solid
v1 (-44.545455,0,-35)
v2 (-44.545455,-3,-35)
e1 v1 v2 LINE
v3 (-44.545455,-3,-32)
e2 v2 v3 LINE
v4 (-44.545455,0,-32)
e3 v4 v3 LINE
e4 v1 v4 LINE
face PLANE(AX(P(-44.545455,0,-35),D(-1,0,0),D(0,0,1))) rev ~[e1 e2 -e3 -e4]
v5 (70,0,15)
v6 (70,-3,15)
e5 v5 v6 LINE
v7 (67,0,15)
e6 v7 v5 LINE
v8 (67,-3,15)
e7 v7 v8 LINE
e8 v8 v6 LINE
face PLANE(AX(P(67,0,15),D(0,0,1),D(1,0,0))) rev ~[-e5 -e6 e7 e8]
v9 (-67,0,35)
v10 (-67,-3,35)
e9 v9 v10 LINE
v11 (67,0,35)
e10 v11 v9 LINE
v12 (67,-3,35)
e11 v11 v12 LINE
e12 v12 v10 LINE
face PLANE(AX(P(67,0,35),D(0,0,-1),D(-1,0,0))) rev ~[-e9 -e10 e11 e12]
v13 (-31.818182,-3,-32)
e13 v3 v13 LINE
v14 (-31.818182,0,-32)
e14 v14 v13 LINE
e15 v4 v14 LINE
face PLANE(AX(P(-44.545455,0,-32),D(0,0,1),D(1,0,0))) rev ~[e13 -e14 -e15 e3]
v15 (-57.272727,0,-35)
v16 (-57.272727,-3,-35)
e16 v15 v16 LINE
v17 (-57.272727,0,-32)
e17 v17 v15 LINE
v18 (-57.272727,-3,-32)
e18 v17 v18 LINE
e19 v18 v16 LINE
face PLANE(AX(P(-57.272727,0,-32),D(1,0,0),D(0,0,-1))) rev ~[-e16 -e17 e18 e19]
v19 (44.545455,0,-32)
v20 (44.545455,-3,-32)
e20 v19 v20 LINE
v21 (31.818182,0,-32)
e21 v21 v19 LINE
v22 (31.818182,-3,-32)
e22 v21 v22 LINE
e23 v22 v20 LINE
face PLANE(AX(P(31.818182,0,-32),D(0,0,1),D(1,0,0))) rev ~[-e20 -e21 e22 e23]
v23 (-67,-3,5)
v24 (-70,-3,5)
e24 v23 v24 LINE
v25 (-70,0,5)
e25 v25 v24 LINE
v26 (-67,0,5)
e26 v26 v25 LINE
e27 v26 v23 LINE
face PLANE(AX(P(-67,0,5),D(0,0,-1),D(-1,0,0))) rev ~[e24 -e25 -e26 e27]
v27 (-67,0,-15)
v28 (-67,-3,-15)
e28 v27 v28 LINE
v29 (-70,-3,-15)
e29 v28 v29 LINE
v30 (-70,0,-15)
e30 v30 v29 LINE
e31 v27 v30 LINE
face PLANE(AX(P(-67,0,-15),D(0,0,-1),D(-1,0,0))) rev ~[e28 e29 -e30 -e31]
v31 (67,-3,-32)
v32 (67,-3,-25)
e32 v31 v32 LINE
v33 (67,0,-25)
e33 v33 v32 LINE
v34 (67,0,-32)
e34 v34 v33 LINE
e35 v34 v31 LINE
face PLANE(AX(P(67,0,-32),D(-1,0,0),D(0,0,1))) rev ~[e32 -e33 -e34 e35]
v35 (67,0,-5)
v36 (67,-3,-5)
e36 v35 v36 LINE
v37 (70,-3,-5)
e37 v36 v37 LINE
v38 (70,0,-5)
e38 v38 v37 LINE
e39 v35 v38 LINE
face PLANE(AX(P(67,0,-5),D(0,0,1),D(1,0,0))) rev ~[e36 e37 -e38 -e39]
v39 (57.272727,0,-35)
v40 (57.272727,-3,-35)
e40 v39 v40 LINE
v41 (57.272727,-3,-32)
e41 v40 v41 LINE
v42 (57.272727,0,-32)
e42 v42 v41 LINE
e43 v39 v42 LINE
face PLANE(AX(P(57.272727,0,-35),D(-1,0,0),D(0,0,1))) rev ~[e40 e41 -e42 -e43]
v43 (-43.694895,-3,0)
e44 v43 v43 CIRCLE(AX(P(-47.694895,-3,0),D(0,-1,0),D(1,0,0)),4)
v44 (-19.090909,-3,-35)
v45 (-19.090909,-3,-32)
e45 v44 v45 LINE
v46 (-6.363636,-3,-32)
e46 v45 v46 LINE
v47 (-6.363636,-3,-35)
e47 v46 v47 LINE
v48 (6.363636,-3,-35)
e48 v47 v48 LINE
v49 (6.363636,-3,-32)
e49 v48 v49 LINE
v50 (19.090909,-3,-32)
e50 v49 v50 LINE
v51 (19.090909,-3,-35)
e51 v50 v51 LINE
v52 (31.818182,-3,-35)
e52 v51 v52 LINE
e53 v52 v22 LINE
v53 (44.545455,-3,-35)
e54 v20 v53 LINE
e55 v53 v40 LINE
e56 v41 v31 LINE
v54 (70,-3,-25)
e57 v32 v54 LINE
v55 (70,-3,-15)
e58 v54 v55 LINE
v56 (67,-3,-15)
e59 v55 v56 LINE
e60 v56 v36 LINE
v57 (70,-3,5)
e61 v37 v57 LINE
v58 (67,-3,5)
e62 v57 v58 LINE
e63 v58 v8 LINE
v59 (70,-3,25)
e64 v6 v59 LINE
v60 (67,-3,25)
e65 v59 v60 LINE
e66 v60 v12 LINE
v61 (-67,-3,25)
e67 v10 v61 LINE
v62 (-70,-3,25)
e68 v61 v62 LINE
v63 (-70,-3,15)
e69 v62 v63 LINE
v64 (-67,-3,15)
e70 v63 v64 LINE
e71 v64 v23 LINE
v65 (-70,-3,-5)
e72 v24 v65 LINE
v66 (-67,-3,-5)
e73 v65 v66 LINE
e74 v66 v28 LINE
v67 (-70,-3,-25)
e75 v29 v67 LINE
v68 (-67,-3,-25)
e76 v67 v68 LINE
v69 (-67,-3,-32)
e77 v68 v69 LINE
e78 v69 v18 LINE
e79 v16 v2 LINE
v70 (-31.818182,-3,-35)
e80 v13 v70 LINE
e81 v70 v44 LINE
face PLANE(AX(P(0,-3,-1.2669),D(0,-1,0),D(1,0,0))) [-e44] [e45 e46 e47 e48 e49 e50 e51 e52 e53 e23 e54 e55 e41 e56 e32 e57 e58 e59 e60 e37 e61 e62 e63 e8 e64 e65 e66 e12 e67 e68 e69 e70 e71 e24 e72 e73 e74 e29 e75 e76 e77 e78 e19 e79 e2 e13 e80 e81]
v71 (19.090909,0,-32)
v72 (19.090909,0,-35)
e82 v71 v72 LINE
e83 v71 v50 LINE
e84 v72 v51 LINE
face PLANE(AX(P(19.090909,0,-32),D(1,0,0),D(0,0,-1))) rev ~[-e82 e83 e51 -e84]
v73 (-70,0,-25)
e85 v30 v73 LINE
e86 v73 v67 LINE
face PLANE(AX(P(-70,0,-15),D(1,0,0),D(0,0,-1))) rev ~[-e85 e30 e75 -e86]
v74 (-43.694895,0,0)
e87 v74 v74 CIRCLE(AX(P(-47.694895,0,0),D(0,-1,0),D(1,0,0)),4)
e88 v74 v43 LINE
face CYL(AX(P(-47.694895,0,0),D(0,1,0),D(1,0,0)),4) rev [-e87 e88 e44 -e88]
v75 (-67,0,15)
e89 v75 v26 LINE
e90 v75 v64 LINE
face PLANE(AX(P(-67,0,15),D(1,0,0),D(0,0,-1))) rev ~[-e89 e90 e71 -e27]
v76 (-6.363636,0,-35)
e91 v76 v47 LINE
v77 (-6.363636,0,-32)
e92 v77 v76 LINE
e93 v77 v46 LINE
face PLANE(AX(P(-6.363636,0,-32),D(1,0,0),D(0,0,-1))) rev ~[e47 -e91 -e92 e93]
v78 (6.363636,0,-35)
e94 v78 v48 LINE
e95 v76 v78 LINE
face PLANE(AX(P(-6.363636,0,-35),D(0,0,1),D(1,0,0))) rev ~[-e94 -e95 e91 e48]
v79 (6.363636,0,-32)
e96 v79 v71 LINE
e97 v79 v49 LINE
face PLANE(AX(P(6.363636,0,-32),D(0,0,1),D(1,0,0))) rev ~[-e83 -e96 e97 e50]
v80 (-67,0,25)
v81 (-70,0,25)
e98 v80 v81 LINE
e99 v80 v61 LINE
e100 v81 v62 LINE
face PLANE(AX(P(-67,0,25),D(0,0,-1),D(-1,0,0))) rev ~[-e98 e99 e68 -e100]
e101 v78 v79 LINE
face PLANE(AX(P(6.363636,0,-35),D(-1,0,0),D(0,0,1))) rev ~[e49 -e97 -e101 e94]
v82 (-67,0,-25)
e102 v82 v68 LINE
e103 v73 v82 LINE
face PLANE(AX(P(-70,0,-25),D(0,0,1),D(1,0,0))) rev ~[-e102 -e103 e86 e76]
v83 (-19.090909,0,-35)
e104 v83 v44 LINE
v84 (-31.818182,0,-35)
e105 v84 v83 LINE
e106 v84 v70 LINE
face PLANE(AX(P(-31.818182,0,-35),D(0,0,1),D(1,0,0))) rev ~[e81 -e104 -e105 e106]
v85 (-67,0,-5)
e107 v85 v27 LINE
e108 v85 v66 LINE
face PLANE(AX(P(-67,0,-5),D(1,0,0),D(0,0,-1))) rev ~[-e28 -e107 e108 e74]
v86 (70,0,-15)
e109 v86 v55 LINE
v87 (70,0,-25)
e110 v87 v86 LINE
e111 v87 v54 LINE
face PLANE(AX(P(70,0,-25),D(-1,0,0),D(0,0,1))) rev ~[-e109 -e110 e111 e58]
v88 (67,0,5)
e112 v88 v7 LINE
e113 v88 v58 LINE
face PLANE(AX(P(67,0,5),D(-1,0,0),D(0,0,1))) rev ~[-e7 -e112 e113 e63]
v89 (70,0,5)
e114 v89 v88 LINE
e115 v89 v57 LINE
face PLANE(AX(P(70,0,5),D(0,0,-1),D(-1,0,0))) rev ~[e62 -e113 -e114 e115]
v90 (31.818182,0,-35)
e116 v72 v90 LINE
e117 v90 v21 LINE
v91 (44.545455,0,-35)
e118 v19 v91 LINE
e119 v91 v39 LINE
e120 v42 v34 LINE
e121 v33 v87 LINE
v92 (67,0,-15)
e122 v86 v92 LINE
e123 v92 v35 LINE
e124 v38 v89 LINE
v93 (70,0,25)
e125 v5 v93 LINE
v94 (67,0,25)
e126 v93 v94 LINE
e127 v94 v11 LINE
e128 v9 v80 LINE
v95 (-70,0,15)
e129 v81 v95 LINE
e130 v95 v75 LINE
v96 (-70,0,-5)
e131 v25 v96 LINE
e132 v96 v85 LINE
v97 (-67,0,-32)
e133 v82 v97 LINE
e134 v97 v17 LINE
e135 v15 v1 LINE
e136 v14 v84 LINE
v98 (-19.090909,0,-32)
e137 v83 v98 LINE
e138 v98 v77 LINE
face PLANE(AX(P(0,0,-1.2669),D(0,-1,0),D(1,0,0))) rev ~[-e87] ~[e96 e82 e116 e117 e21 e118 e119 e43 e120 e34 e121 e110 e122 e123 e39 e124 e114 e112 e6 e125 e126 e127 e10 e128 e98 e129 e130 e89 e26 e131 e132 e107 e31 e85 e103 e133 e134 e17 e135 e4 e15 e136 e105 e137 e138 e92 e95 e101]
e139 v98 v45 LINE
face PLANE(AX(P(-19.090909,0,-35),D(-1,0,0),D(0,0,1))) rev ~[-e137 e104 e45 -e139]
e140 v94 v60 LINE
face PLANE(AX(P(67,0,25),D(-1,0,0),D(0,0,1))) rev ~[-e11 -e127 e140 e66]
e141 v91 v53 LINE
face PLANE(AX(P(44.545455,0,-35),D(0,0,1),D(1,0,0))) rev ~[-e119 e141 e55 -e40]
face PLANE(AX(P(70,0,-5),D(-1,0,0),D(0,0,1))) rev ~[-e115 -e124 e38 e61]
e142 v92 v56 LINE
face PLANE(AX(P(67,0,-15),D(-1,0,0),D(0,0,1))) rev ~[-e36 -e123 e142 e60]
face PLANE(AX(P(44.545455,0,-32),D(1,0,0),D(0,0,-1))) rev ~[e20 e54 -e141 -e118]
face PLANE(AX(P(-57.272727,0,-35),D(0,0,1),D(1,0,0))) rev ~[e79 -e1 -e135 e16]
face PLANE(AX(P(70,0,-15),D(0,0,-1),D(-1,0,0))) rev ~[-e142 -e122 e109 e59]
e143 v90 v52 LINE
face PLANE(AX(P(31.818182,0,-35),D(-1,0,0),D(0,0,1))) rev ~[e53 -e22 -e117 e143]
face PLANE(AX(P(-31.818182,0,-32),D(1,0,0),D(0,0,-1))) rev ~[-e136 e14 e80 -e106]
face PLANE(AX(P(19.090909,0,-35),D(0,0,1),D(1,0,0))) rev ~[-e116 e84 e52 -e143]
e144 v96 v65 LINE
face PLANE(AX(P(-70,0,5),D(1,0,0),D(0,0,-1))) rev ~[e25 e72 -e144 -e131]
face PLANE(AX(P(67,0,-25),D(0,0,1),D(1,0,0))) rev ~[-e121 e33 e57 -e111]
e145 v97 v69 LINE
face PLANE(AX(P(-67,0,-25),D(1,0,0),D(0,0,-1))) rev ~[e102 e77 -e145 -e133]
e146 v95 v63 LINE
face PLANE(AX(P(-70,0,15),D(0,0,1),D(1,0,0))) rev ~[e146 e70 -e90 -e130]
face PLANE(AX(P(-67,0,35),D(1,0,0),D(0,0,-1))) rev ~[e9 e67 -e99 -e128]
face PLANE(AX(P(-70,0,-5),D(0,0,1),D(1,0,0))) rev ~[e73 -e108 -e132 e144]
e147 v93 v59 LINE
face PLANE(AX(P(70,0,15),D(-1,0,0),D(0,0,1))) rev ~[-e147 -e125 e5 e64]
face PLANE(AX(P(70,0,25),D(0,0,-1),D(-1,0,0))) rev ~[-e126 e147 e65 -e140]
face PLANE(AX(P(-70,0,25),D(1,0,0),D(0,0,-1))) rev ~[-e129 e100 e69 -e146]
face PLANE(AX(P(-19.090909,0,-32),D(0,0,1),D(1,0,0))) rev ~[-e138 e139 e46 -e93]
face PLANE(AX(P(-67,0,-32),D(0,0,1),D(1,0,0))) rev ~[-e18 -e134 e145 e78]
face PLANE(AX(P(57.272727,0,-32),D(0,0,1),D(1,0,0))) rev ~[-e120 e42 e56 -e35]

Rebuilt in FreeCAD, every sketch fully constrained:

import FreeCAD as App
import Part
import Sketcher

doc = App.newDocument("Part")
body = doc.addObject("PartDesign::Body", "Body")

sketch1 = body.newObject("Sketcher::SketchObject", "Sketch")
sketch1.AttachmentSupport = (doc.getObject("XZ_Plane"), [""])
sketch1.MapMode = "FlatFace"
sketch1.addGeometry([
    Part.LineSegment(App.Vector(67, 25, 0), App.Vector(67, 35, 0)),
    Part.LineSegment(App.Vector(67, 35, 0), App.Vector(-67, 35, 0)),
    Part.LineSegment(App.Vector(-67, 35, 0), App.Vector(-67, 25, 0)),
    Part.LineSegment(App.Vector(-67, 25, 0), App.Vector(-70, 25, 0)),
    Part.LineSegment(App.Vector(-70, 25, 0), App.Vector(-70, 15, 0)),
    Part.LineSegment(App.Vector(-70, 15, 0), App.Vector(-67, 15, 0)),
    Part.LineSegment(App.Vector(-67, 15, 0), App.Vector(-67, 5, 0)),
    Part.LineSegment(App.Vector(-67, 5, 0), App.Vector(-70, 5, 0)),
    Part.LineSegment(App.Vector(-70, 5, 0), App.Vector(-70, -5, 0)),
    Part.LineSegment(App.Vector(-70, -5, 0), App.Vector(-67, -5, 0)),
    Part.LineSegment(App.Vector(-67, -5, 0), App.Vector(-67, -15, 0)),
    Part.LineSegment(App.Vector(-67, -15, 0), App.Vector(-70, -15, 0)),
    Part.LineSegment(App.Vector(-70, -15, 0), App.Vector(-70, -25, 0)),
    Part.LineSegment(App.Vector(-70, -25, 0), App.Vector(-67, -25, 0)),
    Part.LineSegment(App.Vector(-67, -25, 0), App.Vector(-67, -32, 0)),
    Part.LineSegment(App.Vector(-67, -32, 0), App.Vector(-57.3, -32, 0)),
    Part.LineSegment(App.Vector(-57.3, -32, 0), App.Vector(-57.3, -35, 0)),
    Part.LineSegment(App.Vector(-57.3, -35, 0), App.Vector(-44.5, -35, 0)),
    Part.LineSegment(App.Vector(-44.5, -35, 0), App.Vector(-44.5, -32, 0)),
    Part.LineSegment(App.Vector(-44.5, -32, 0), App.Vector(-31.8, -32, 0)),
    Part.LineSegment(App.Vector(-31.8, -32, 0), App.Vector(-31.8, -35, 0)),
    Part.LineSegment(App.Vector(-31.8, -35, 0), App.Vector(-19.1, -35, 0)),
    Part.LineSegment(App.Vector(-19.1, -35, 0), App.Vector(-19.1, -32, 0)),
    Part.LineSegment(App.Vector(-19.1, -32, 0), App.Vector(-6.4, -32, 0)),
    Part.LineSegment(App.Vector(-6.4, -32, 0), App.Vector(-6.4, -35, 0)),
    Part.LineSegment(App.Vector(-6.4, -35, 0), App.Vector(6.4, -35, 0)),
    Part.LineSegment(App.Vector(6.4, -35, 0), App.Vector(6.4, -32, 0)),
    Part.LineSegment(App.Vector(6.4, -32, 0), App.Vector(19.1, -32, 0)),
    Part.LineSegment(App.Vector(19.1, -32, 0), App.Vector(19.1, -35, 0)),
    Part.LineSegment(App.Vector(19.1, -35, 0), App.Vector(31.8, -35, 0)),
    Part.LineSegment(App.Vector(31.8, -35, 0), App.Vector(31.8, -32, 0)),
    Part.LineSegment(App.Vector(31.8, -32, 0), App.Vector(44.5, -32, 0)),
    Part.LineSegment(App.Vector(44.5, -32, 0), App.Vector(44.5, -35, 0)),
    Part.LineSegment(App.Vector(44.5, -35, 0), App.Vector(57.3, -35, 0)),
    Part.LineSegment(App.Vector(57.3, -35, 0), App.Vector(57.3, -32, 0)),
    Part.LineSegment(App.Vector(57.3, -32, 0), App.Vector(67, -32, 0)),
    Part.LineSegment(App.Vector(67, -32, 0), App.Vector(67, -25, 0)),
    Part.LineSegment(App.Vector(67, -25, 0), App.Vector(70, -25, 0)),
    Part.LineSegment(App.Vector(70, -25, 0), App.Vector(70, -15, 0)),
    Part.LineSegment(App.Vector(70, -15, 0), App.Vector(67, -15, 0)),
    Part.LineSegment(App.Vector(67, -15, 0), App.Vector(67, -5, 0)),
    Part.LineSegment(App.Vector(67, -5, 0), App.Vector(70, -5, 0)),
    Part.LineSegment(App.Vector(70, -5, 0), App.Vector(70, 5, 0)),
    Part.LineSegment(App.Vector(70, 5, 0), App.Vector(67, 5, 0)),
    Part.LineSegment(App.Vector(67, 5, 0), App.Vector(67, 15, 0)),
    Part.LineSegment(App.Vector(67, 15, 0), App.Vector(70, 15, 0)),
    Part.LineSegment(App.Vector(70, 15, 0), App.Vector(70, 25, 0)),
    Part.LineSegment(App.Vector(70, 25, 0), App.Vector(67, 25, 0)),
    Part.Circle(App.Vector(-47.7, 0, 0), App.Vector(0, 0, 1), 4),
], False)
sketch1.addConstraint([
    Sketcher.Constraint("Coincident", 0, 2, 1, 1),
    Sketcher.Constraint("Coincident", 1, 2, 2, 1),
    Sketcher.Constraint("Coincident", 2, 2, 3, 1),
    Sketcher.Constraint("Coincident", 3, 2, 4, 1),
    Sketcher.Constraint("Coincident", 4, 2, 5, 1),
    Sketcher.Constraint("Coincident", 5, 2, 6, 1),
    Sketcher.Constraint("Coincident", 6, 2, 7, 1),
    Sketcher.Constraint("Coincident", 7, 2, 8, 1),
    Sketcher.Constraint("Coincident", 8, 2, 9, 1),
    Sketcher.Constraint("Coincident", 9, 2, 10, 1),
    Sketcher.Constraint("Coincident", 10, 2, 11, 1),
    Sketcher.Constraint("Coincident", 11, 2, 12, 1),
    Sketcher.Constraint("Coincident", 12, 2, 13, 1),
    Sketcher.Constraint("Coincident", 13, 2, 14, 1),
    Sketcher.Constraint("Coincident", 14, 2, 15, 1),
    Sketcher.Constraint("Coincident", 15, 2, 16, 1),
    Sketcher.Constraint("Coincident", 16, 2, 17, 1),
    Sketcher.Constraint("Coincident", 17, 2, 18, 1),
    Sketcher.Constraint("Coincident", 18, 2, 19, 1),
    Sketcher.Constraint("Coincident", 19, 2, 20, 1),
    Sketcher.Constraint("Coincident", 20, 2, 21, 1),
    Sketcher.Constraint("Coincident", 21, 2, 22, 1),
    Sketcher.Constraint("Coincident", 22, 2, 23, 1),
    Sketcher.Constraint("Coincident", 23, 2, 24, 1),
    Sketcher.Constraint("Coincident", 24, 2, 25, 1),
    Sketcher.Constraint("Coincident", 25, 2, 26, 1),
    Sketcher.Constraint("Coincident", 26, 2, 27, 1),
    Sketcher.Constraint("Coincident", 27, 2, 28, 1),
    Sketcher.Constraint("Coincident", 28, 2, 29, 1),
    Sketcher.Constraint("Coincident", 29, 2, 30, 1),
    Sketcher.Constraint("Coincident", 30, 2, 31, 1),
    Sketcher.Constraint("Coincident", 31, 2, 32, 1),
    Sketcher.Constraint("Coincident", 32, 2, 33, 1),
    Sketcher.Constraint("Coincident", 33, 2, 34, 1),
    Sketcher.Constraint("Coincident", 34, 2, 35, 1),
    Sketcher.Constraint("Coincident", 35, 2, 36, 1),
    Sketcher.Constraint("Coincident", 36, 2, 37, 1),
    Sketcher.Constraint("Coincident", 37, 2, 38, 1),
    Sketcher.Constraint("Coincident", 38, 2, 39, 1),
    Sketcher.Constraint("Coincident", 39, 2, 40, 1),
    Sketcher.Constraint("Coincident", 40, 2, 41, 1),
    Sketcher.Constraint("Coincident", 41, 2, 42, 1),
    Sketcher.Constraint("Coincident", 42, 2, 43, 1),
    Sketcher.Constraint("Coincident", 43, 2, 44, 1),
    Sketcher.Constraint("Coincident", 44, 2, 45, 1),
    Sketcher.Constraint("Coincident", 45, 2, 46, 1),
    Sketcher.Constraint("Coincident", 46, 2, 47, 1),
    Sketcher.Constraint("Coincident", 47, 2, 0, 1),
    Sketcher.Constraint("Vertical", 0),
    Sketcher.Constraint("Horizontal", 1),
    Sketcher.Constraint("Vertical", 2),
    Sketcher.Constraint("Horizontal", 3),
    Sketcher.Constraint("Vertical", 4),
    Sketcher.Constraint("Horizontal", 5),
    Sketcher.Constraint("Vertical", 6),
    Sketcher.Constraint("Horizontal", 7),
    Sketcher.Constraint("Vertical", 8),
    Sketcher.Constraint("Horizontal", 9),
    Sketcher.Constraint("Vertical", 10),
    Sketcher.Constraint("Horizontal", 11),
    Sketcher.Constraint("Vertical", 12),
    Sketcher.Constraint("Horizontal", 13),
    Sketcher.Constraint("Vertical", 14),
    Sketcher.Constraint("Horizontal", 15),
    Sketcher.Constraint("Vertical", 16),
    Sketcher.Constraint("Horizontal", 17),
    Sketcher.Constraint("Vertical", 18),
    Sketcher.Constraint("Horizontal", 19),
    Sketcher.Constraint("Vertical", 20),
    Sketcher.Constraint("Horizontal", 21),
    Sketcher.Constraint("Vertical", 22),
    Sketcher.Constraint("Horizontal", 23),
    Sketcher.Constraint("Vertical", 24),
    Sketcher.Constraint("Horizontal", 25),
    Sketcher.Constraint("Vertical", 26),
    Sketcher.Constraint("Horizontal", 27),
    Sketcher.Constraint("Vertical", 28),
    Sketcher.Constraint("Horizontal", 29),
    Sketcher.Constraint("Vertical", 30),
    Sketcher.Constraint("Horizontal", 31),
    Sketcher.Constraint("Vertical", 32),
    Sketcher.Constraint("Horizontal", 33),
    Sketcher.Constraint("Vertical", 34),
    Sketcher.Constraint("Horizontal", 35),
    Sketcher.Constraint("Vertical", 36),
    Sketcher.Constraint("Horizontal", 37),
    Sketcher.Constraint("Vertical", 38),
    Sketcher.Constraint("Horizontal", 39),
    Sketcher.Constraint("Vertical", 40),
    Sketcher.Constraint("Horizontal", 41),
    Sketcher.Constraint("Vertical", 42),
    Sketcher.Constraint("Horizontal", 43),
    Sketcher.Constraint("Vertical", 44),
    Sketcher.Constraint("Horizontal", 45),
    Sketcher.Constraint("Vertical", 46),
    Sketcher.Constraint("Horizontal", 47),
    Sketcher.Constraint("Symmetric", 2, 2, 36, 2, -1, 1),
    Sketcher.Constraint("Symmetric", 4, 2, 38, 2, -1, 1),
    Sketcher.Constraint("Symmetric", 6, 2, 40, 2, -1, 1),
    Sketcher.Constraint("Symmetric", 8, 2, 42, 2, -1, 1),
    Sketcher.Constraint("Symmetric", 10, 2, 44, 2, -1, 1),
    Sketcher.Constraint("Symmetric", 12, 2, 46, 2, -1, 1),
    Sketcher.Constraint("Symmetric", 23, 2, 26, 2, -2),
    Sketcher.Constraint("Symmetric", 21, 2, 28, 2, -2),
    Sketcher.Constraint("Symmetric", 19, 2, 30, 2, -2),
    Sketcher.Constraint("Symmetric", 17, 2, 32, 2, -2),
    Sketcher.Constraint("Symmetric", 15, 2, 34, 2, -2),
    Sketcher.Constraint("Symmetric", 13, 2, 36, 2, -2),
    Sketcher.Constraint("Symmetric", 11, 2, 38, 2, -2),
    Sketcher.Constraint("Symmetric", 9, 2, 40, 2, -2),
    Sketcher.Constraint("PointOnObject", 48, 3, -1),
    Sketcher.Constraint("Horizontal", 15, 2, 18, 2),
    Sketcher.Constraint("Horizontal", 17, 2, 20, 2),
    Sketcher.Constraint("Horizontal", 19, 2, 22, 2),
    Sketcher.Constraint("Horizontal", 21, 2, 24, 2),
    Sketcher.Constraint("Vertical", 2, 2, 5, 2),
    Sketcher.Constraint("Vertical", 4, 2, 7, 2),
    Sketcher.Constraint("Vertical", 0, 2, 35, 2),
    Sketcher.Constraint("Equal", 17, 19),
    Sketcher.Constraint("Equal", 19, 21),
    Sketcher.Constraint("Equal", 21, 23),
    Sketcher.Constraint("Equal", 23, 25),
    Sketcher.Constraint("Equal", 2, 4),
    Sketcher.Constraint("Equal", 4, 6),
    Sketcher.Constraint("Equal", 6, 8),
    Sketcher.Constraint("Equal", 47, 16),
    Sketcher.Constraint("Diameter", 48, 8.0),
    Sketcher.Constraint("DistanceX", 1, 2, 1, 1, 134.0),
    Sketcher.Constraint("DistanceX", 3, 2, 3, 1, 3.0),
    Sketcher.Constraint("DistanceY", 0, 1, 0, 2, 10.0),
    Sketcher.Constraint("DistanceY", 14, 2, 14, 1, 7.0),
    Sketcher.Constraint("DistanceX", 25, 1, 25, 2, 12.727272),
    Sketcher.Constraint("DistanceX", 48, 3, -1, 1, 47.694895),
])
pad1 = body.newObject("PartDesign::Pad", "Pad")
pad1.Profile = sketch1
pad1.Length = 3

doc.recompute()
